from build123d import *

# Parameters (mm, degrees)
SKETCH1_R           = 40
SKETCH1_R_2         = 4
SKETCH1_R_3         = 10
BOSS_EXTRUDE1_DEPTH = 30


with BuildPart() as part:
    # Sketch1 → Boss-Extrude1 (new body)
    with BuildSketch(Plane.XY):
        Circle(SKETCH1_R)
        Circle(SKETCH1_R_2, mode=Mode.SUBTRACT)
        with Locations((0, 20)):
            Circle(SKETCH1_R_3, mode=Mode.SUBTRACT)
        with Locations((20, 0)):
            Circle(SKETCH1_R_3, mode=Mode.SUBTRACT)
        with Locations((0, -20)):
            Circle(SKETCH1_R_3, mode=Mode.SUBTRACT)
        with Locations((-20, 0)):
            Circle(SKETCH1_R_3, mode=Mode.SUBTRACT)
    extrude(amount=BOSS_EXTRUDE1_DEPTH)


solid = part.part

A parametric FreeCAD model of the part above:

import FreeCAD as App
import Part
import Sketcher
from FreeCAD import Vector
Q = App.Units.Quantity

doc = App.newDocument("Part")
body = doc.addObject("PartDesign::Body", "Body")

# Sketch on XY plane
sketch1 = doc.addObject("Sketcher::SketchObject", "Sketch")
body.addObject(sketch1)
sketch1.AttachmentSupport = (doc.XY_Plane, [""])
sketch1.MapMode = "FlatFace"
sketch1.addGeometry(Part.Circle(Vector(0, 0, 0), Vector(0, 0, 1), 40), False)
sketch1.addGeometry(Part.Circle(Vector(0, -20, 0), Vector(0, 0, 1), 10), False)
sketch1.addGeometry(Part.Circle(Vector(-20, 0, 0), Vector(0, 0, 1), 10), False)
sketch1.addGeometry(Part.Circle(Vector(0, 0, 0), Vector(0, 0, 1), 4), False)
sketch1.addGeometry(Part.Circle(Vector(20, 0, 0), Vector(0, 0, 1), 10), False)
sketch1.addGeometry(Part.Circle(Vector(0, 20, 0), Vector(0, 0, 1), 10), False)
sketch1.addConstraint(Sketcher.Constraint("Coincident", 0, 3, -1, 1))
sketch1.addConstraint(Sketcher.Constraint("Coincident", 3, 3, -1, 1))
sketch1.addConstraint(Sketcher.Constraint("Equal", 1, 2))
sketch1.addConstraint(Sketcher.Constraint("Equal", 2, 4))
sketch1.addConstraint(Sketcher.Constraint("Equal", 4, 5))
sketch1.addConstraint(Sketcher.Constraint("Symmetric", 2, 3, 4, 3, -1, 1))
sketch1.addConstraint(Sketcher.Constraint("Symmetric", 1, 3, 5, 3, -1, 1))
sketch1.addConstraint(Sketcher.Constraint("PointOnObject", 1, 3, -2))
sketch1.addConstraint(Sketcher.Constraint("PointOnObject", 2, 3, -1))
sketch1.addConstraint(Sketcher.Constraint("Diameter", 0, Q("80 mm")))
sketch1.addConstraint(Sketcher.Constraint("Diameter", 1, Q("20 mm")))
sketch1.addConstraint(Sketcher.Constraint("Diameter", 3, Q("8 mm")))
sketch1.addConstraint(Sketcher.Constraint("DistanceY", 1, 3, -1, 1, Q("20 mm")))
sketch1.addConstraint(Sketcher.Constraint("DistanceX", 2, 3, -1, 1, Q("20 mm")))
pad1 = doc.addObject("PartDesign::Pad", "Pad")
body.addObject(pad1)
pad1.Profile = sketch1
pad1.Length = 30

doc.recompute()
